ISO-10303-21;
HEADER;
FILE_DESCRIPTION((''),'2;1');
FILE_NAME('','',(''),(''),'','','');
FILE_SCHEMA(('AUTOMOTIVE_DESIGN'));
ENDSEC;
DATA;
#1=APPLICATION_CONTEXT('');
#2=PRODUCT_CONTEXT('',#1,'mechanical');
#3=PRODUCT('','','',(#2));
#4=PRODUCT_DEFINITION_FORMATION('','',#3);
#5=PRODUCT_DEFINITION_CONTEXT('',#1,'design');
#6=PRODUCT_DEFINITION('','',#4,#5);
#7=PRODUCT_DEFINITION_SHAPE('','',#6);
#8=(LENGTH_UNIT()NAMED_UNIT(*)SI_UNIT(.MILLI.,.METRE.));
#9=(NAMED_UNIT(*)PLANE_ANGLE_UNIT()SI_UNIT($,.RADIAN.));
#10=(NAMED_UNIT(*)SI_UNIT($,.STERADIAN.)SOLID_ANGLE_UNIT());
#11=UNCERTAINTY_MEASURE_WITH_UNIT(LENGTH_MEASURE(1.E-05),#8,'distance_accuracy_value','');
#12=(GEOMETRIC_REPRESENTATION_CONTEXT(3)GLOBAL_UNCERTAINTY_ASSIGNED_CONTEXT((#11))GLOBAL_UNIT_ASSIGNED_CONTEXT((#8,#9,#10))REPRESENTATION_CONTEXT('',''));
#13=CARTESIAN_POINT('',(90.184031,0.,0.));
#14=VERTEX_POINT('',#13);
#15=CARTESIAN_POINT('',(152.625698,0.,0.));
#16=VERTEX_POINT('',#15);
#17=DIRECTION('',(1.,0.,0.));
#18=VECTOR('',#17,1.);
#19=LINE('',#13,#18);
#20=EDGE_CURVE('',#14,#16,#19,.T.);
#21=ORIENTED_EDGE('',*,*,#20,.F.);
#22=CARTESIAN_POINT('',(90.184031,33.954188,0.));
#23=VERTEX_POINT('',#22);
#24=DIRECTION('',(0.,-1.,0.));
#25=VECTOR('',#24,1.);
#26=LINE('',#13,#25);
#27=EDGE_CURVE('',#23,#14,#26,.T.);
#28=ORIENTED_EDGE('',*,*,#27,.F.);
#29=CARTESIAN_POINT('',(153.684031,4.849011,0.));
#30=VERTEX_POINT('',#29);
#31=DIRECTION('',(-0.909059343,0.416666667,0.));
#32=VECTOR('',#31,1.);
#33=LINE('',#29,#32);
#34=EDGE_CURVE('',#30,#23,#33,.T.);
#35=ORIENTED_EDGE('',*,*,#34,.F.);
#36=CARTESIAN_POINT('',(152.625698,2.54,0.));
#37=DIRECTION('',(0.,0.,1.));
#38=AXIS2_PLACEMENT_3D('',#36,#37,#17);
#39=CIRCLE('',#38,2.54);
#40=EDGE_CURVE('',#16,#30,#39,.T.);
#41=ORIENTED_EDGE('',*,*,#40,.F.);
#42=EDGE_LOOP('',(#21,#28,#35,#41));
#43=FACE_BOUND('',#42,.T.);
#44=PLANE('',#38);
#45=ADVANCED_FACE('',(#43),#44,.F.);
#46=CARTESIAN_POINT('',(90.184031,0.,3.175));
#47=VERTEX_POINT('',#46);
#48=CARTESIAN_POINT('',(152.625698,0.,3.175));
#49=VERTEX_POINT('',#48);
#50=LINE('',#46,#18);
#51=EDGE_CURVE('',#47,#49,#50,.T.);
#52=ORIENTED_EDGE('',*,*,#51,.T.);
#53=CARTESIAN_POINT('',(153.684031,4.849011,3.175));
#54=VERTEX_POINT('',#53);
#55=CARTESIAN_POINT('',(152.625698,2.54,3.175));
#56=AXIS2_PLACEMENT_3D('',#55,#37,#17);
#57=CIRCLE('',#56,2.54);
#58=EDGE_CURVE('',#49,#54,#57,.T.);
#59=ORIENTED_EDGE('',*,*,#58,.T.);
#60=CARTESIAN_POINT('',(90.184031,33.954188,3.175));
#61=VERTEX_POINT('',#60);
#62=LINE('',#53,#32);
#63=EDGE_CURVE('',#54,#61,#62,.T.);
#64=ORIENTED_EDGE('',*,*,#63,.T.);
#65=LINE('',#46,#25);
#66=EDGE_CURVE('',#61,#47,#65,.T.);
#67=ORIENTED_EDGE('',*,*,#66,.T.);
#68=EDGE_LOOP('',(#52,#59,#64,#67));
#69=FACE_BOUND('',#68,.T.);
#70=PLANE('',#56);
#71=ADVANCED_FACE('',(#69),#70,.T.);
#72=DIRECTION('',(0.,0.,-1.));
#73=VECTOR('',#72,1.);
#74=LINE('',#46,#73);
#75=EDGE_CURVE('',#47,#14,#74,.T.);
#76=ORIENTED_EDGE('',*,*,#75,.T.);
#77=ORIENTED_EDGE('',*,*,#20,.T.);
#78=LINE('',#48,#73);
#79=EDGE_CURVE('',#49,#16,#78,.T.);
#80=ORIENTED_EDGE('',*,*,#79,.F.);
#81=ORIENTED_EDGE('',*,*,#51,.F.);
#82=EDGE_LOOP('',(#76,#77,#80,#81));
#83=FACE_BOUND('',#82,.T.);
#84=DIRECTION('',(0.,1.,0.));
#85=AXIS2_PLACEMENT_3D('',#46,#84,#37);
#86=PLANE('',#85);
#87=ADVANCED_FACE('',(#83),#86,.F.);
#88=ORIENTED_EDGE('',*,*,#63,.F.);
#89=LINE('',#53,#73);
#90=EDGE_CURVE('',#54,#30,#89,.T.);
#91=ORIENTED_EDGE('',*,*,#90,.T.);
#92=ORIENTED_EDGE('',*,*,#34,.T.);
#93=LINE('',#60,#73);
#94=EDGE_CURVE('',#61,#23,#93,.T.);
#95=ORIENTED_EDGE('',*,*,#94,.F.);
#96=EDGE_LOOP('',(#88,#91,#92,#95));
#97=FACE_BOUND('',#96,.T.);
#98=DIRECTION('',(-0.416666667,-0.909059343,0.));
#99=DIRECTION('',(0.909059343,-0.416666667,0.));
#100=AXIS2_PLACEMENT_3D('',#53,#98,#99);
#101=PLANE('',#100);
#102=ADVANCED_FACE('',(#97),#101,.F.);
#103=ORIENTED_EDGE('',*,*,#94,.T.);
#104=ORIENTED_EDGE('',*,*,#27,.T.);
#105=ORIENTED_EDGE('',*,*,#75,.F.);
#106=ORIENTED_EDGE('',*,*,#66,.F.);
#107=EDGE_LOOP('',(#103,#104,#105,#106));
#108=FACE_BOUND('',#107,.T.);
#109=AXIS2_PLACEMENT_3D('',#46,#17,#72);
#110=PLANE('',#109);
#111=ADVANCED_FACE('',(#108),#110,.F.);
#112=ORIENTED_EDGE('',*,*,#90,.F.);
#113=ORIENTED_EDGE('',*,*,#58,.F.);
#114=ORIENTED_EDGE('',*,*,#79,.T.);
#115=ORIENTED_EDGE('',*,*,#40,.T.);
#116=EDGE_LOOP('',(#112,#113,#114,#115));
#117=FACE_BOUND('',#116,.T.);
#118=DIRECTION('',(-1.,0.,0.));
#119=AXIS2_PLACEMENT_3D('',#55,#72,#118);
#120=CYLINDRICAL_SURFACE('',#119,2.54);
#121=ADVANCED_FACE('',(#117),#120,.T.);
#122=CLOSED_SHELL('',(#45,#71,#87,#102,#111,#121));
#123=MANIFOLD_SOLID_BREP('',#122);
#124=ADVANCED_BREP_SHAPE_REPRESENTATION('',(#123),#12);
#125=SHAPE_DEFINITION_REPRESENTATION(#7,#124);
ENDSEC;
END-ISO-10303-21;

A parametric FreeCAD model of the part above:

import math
import FreeCAD as App
import Part
import Sketcher

V = App.Vector
Q = App.Units.Quantity

doc = App.newDocument("Part")
body = doc.addObject("PartDesign::Body", "Body")

# Sketch on XY plane
sketch1 = body.newObject("Sketcher::SketchObject", "Sketch")
sketch1.AttachmentSupport = (doc.getObject("XY_Plane"), [""])
sketch1.MapMode = "FlatFace"
sketch1.addGeometry([
    Part.LineSegment(V(90.2, 0, 0), V(152.6, 0, 0)),
    Part.ArcOfCircle(Part.Circle(V(152.6, 2.5, 0), V(0, 0, 1), 2.5), math.radians(-90), math.radians(65)),
    Part.LineSegment(V(153.7, 4.8, 0), V(90.2, 34, 0)),
    Part.LineSegment(V(90.2, 34, 0), V(90.2, 0, 0)),
], False)
sketch1.addConstraint([
    Sketcher.Constraint("Tangent", 0, 2, 1, 1),
    Sketcher.Constraint("Tangent", 1, 2, 2, 1),
    Sketcher.Constraint("Coincident", 2, 2, 3, 1),
    Sketcher.Constraint("Coincident", 3, 2, 0, 1),
    Sketcher.Constraint("Horizontal", 0),
    Sketcher.Constraint("Vertical", 3),
    Sketcher.Constraint("PointOnObject", 0, 2, -1),
    Sketcher.Constraint("Radius", 1, Q("0.1 in")),
    Sketcher.Constraint("DistanceX", 2, 2, 1, 2, Q("2.5 in")),
    Sketcher.Constraint("DistanceY", 3, 2, 3, 1, 33.954188),
    Sketcher.Constraint("DistanceX", -1, 1, 1, 2, 153.684031),
])
pad1 = body.newObject("PartDesign::Pad", "Pad")
pad1.Profile = sketch1
pad1.Length = Q("0.125 in")

doc.recompute()
